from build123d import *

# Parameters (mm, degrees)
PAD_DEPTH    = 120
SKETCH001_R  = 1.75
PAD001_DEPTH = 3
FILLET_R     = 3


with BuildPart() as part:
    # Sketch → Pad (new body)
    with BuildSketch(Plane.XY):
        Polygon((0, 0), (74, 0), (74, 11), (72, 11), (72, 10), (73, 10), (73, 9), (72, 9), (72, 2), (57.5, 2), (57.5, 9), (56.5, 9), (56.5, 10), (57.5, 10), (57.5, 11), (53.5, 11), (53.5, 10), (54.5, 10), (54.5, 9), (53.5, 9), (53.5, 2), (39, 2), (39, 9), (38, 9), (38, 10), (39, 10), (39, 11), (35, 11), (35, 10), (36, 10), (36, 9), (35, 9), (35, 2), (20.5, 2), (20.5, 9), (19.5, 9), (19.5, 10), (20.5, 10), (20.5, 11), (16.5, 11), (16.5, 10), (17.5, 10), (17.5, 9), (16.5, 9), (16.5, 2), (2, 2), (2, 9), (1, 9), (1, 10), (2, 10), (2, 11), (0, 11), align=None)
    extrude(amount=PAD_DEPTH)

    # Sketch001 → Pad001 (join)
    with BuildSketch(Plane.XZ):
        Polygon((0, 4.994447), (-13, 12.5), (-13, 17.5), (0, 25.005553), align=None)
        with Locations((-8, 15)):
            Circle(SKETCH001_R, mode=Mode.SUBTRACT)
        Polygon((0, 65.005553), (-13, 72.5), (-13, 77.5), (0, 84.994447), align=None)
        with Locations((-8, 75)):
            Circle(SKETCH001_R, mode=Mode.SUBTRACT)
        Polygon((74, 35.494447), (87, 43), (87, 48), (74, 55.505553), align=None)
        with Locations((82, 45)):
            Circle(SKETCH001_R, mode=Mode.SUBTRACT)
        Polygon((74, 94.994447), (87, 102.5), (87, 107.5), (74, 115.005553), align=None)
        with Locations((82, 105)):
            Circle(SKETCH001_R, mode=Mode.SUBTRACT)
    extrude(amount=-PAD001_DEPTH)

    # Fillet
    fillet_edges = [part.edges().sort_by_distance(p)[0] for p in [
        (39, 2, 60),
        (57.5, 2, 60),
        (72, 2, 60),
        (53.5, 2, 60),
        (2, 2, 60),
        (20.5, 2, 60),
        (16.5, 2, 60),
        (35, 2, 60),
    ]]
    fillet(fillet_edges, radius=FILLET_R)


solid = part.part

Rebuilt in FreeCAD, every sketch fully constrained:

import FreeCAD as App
import Part
import Sketcher

V = App.Vector
Q = App.Units.Quantity


def edges_at(feature, points):
    """Names of the edges that pass closest to the given points."""
    edges = feature.Shape.Edges
    near = lambda p: min(range(len(edges)), key=lambda i: edges[i].distToShape(Part.Vertex(*p))[0])
    return sorted({f"Edge{near(p) + 1}" for p in points})

doc = App.newDocument("Part")
body = doc.addObject("PartDesign::Body", "Body")

# Sketch on XY plane
sketch1 = doc.addObject("Sketcher::SketchObject", "Sketch")
body.addObject(sketch1)
sketch1.AttachmentSupport = (doc.XY_Plane, [""])
sketch1.MapMode = "FlatFace"
sketch1.addGeometry([
    Part.LineSegment(V(0, 0, 0), V(74, 0, 0)),  # 0
    Part.LineSegment(V(74, 0, 0), V(74, 11, 0)),  # 1
    Part.LineSegment(V(74, 11, 0), V(72, 11, 0)),  # 2
    Part.LineSegment(V(72, 11, 0), V(72, 10, 0)),  # 3
    Part.LineSegment(V(72, 10, 0), V(73, 10, 0)),  # 4
    Part.LineSegment(V(73, 10, 0), V(73, 9, 0)),  # 5
    Part.LineSegment(V(73, 9, 0), V(72, 9, 0)),  # 6
    Part.LineSegment(V(72, 9, 0), V(72, 2, 0)),  # 7
    Part.LineSegment(V(72, 2, 0), V(57.5, 2, 0)),  # 8
    Part.LineSegment(V(57.5, 2, 0), V(57.5, 9, 0)),  # 9
    Part.LineSegment(V(57.5, 9, 0), V(56.5, 9, 0)),  # 10
    Part.LineSegment(V(56.5, 9, 0), V(56.5, 10, 0)),  # 11
    Part.LineSegment(V(56.5, 10, 0), V(57.5, 10, 0)),  # 12
    Part.LineSegment(V(57.5, 10, 0), V(57.5, 11, 0)),  # 13
    Part.LineSegment(V(57.5, 11, 0), V(53.5, 11, 0)),  # 14
    Part.LineSegment(V(53.5, 11, 0), V(53.5, 10, 0)),  # 15
    Part.LineSegment(V(53.5, 10, 0), V(54.5, 10, 0)),  # 16
    Part.LineSegment(V(54.5, 10, 0), V(54.5, 9, 0)),  # 17
    Part.LineSegment(V(54.5, 9, 0), V(53.5, 9, 0)),  # 18
    Part.LineSegment(V(53.5, 9, 0), V(53.5, 2, 0)),  # 19
    Part.LineSegment(V(53.5, 2, 0), V(39, 2, 0)),  # 20
    Part.LineSegment(V(39, 2, 0), V(39, 9, 0)),  # 21
    Part.LineSegment(V(39, 9, 0), V(38, 9, 0)),  # 22
    Part.LineSegment(V(38, 9, 0), V(38, 10, 0)),  # 23
    Part.LineSegment(V(38, 10, 0), V(39, 10, 0)),  # 24
    Part.LineSegment(V(39, 10, 0), V(39, 11, 0)),  # 25
    Part.LineSegment(V(39, 11, 0), V(35, 11, 0)),  # 26
    Part.LineSegment(V(35, 11, 0), V(35, 10, 0)),  # 27
    Part.LineSegment(V(35, 10, 0), V(36, 10, 0)),  # 28
    Part.LineSegment(V(36, 10, 0), V(36, 9, 0)),  # 29
    Part.LineSegment(V(36, 9, 0), V(35, 9, 0)),  # 30
    Part.LineSegment(V(35, 9, 0), V(35, 2, 0)),  # 31
    Part.LineSegment(V(35, 2, 0), V(20.5, 2, 0)),  # 32
    Part.LineSegment(V(20.5, 2, 0), V(20.5, 9, 0)),  # 33
    Part.LineSegment(V(20.5, 9, 0), V(19.5, 9, 0)),  # 34
    Part.LineSegment(V(19.5, 9, 0), V(19.5, 10, 0)),  # 35
    Part.LineSegment(V(19.5, 10, 0), V(20.5, 10, 0)),  # 36
    Part.LineSegment(V(20.5, 10, 0), V(20.5, 11, 0)),  # 37
    Part.LineSegment(V(20.5, 11, 0), V(16.5, 11, 0)),  # 38
    Part.LineSegment(V(16.5, 11, 0), V(16.5, 10, 0)),  # 39
    Part.LineSegment(V(16.5, 10, 0), V(17.5, 10, 0)),  # 40
    Part.LineSegment(V(17.5, 10, 0), V(17.5, 9, 0)),  # 41
    Part.LineSegment(V(17.5, 9, 0), V(16.5, 9, 0)),  # 42
    Part.LineSegment(V(16.5, 9, 0), V(16.5, 2, 0)),  # 43
    Part.LineSegment(V(16.5, 2, 0), V(2, 2, 0)),  # 44
    Part.LineSegment(V(2, 2, 0), V(2, 9, 0)),  # 45
    Part.LineSegment(V(2, 9, 0), V(1, 9, 0)),  # 46
    Part.LineSegment(V(1, 9, 0), V(1, 10, 0)),  # 47
    Part.LineSegment(V(1, 10, 0), V(2, 10, 0)),  # 48
    Part.LineSegment(V(2, 10, 0), V(2, 11, 0)),  # 49
    Part.LineSegment(V(2, 11, 0), V(0, 11, 0)),  # 50
    Part.LineSegment(V(0, 11, 0), V(0, 0, 0)),  # 51
], False)
sketch1.addConstraint([
    Sketcher.Constraint("Coincident", 0, 2, 1, 1),
    Sketcher.Constraint("Coincident", 1, 2, 2, 1),
    Sketcher.Constraint("Coincident", 2, 2, 3, 1),
    Sketcher.Constraint("Coincident", 3, 2, 4, 1),
    Sketcher.Constraint("Coincident", 4, 2, 5, 1),
    Sketcher.Constraint("Coincident", 5, 2, 6, 1),
    Sketcher.Constraint("Coincident", 6, 2, 7, 1),
    Sketcher.Constraint("Coincident", 7, 2, 8, 1),
    Sketcher.Constraint("Coincident", 8, 2, 9, 1),
    Sketcher.Constraint("Coincident", 9, 2, 10, 1),
    Sketcher.Constraint("Coincident", 10, 2, 11, 1),
    Sketcher.Constraint("Coincident", 11, 2, 12, 1),
    Sketcher.Constraint("Coincident", 12, 2, 13, 1),
    Sketcher.Constraint("Coincident", 13, 2, 14, 1),
    Sketcher.Constraint("Coincident", 14, 2, 15, 1),
    Sketcher.Constraint("Coincident", 15, 2, 16, 1),
    Sketcher.Constraint("Coincident", 16, 2, 17, 1),
    Sketcher.Constraint("Coincident", 17, 2, 18, 1),
    Sketcher.Constraint("Coincident", 18, 2, 19, 1),
    Sketcher.Constraint("Coincident", 19, 2, 20, 1),
    Sketcher.Constraint("Coincident", 20, 2, 21, 1),
    Sketcher.Constraint("Coincident", 21, 2, 22, 1),
    Sketcher.Constraint("Coincident", 22, 2, 23, 1),
    Sketcher.Constraint("Coincident", 23, 2, 24, 1),
    Sketcher.Constraint("Coincident", 24, 2, 25, 1),
    Sketcher.Constraint("Coincident", 25, 2, 26, 1),
    Sketcher.Constraint("Coincident", 26, 2, 27, 1),
    Sketcher.Constraint("Coincident", 27, 2, 28, 1),
    Sketcher.Constraint("Coincident", 28, 2, 29, 1),
    Sketcher.Constraint("Coincident", 29, 2, 30, 1),
    Sketcher.Constraint("Coincident", 30, 2, 31, 1),
    Sketcher.Constraint("Coincident", 31, 2, 32, 1),
    Sketcher.Constraint("Coincident", 32, 2, 33, 1),
    Sketcher.Constraint("Coincident", 33, 2, 34, 1),
    Sketcher.Constraint("Coincident", 34, 2, 35, 1),
    Sketcher.Constraint("Coincident", 35, 2, 36, 1),
    Sketcher.Constraint("Coincident", 36, 2, 37, 1),
    Sketcher.Constraint("Coincident", 37, 2, 38, 1),
    Sketcher.Constraint("Coincident", 38, 2, 39, 1),
    Sketcher.Constraint("Coincident", 39, 2, 40, 1),
    Sketcher.Constraint("Coincident", 40, 2, 41, 1),
    Sketcher.Constraint("Coincident", 41, 2, 42, 1),
    Sketcher.Constraint("Coincident", 42, 2, 43, 1),
    Sketcher.Constraint("Coincident", 43, 2, 44, 1),
    Sketcher.Constraint("Coincident", 44, 2, 45, 1),
    Sketcher.Constraint("Coincident", 45, 2, 46, 1),
    Sketcher.Constraint("Coincident", 46, 2, 47, 1),
    Sketcher.Constraint("Coincident", 47, 2, 48, 1),
    Sketcher.Constraint("Coincident", 48, 2, 49, 1),
    Sketcher.Constraint("Coincident", 49, 2, 50, 1),
    Sketcher.Constraint("Coincident", 50, 2, 51, 1),
    Sketcher.Constraint("Coincident", 51, 2, 0, 1),
    Sketcher.Constraint("Horizontal", 0),
    Sketcher.Constraint("Vertical", 1),
    Sketcher.Constraint("Horizontal", 2),
    Sketcher.Constraint("Vertical", 3),
    Sketcher.Constraint("Horizontal", 4),
    Sketcher.Constraint("Vertical", 5),
    Sketcher.Constraint("Horizontal", 6),
    Sketcher.Constraint("Vertical", 7),
    Sketcher.Constraint("Horizontal", 8),
    Sketcher.Constraint("Vertical", 9),
    Sketcher.Constraint("Horizontal", 10),
    Sketcher.Constraint("Vertical", 11),
    Sketcher.Constraint("Horizontal", 12),
    Sketcher.Constraint("Vertical", 13),
    Sketcher.Constraint("Horizontal", 14),
    Sketcher.Constraint("Vertical", 15),
    Sketcher.Constraint("Horizontal", 16),
    Sketcher.Constraint("Vertical", 17),
    Sketcher.Constraint("Horizontal", 18),
    Sketcher.Constraint("Vertical", 19),
    Sketcher.Constraint("Horizontal", 20),
    Sketcher.Constraint("Vertical", 21),
    Sketcher.Constraint("Horizontal", 22),
    Sketcher.Constraint("Vertical", 23),
    Sketcher.Constraint("Horizontal", 24),
    Sketcher.Constraint("Vertical", 25),
    Sketcher.Constraint("Horizontal", 26),
    Sketcher.Constraint("Vertical", 27),
    Sketcher.Constraint("Horizontal", 28),
    Sketcher.Constraint("Vertical", 29),
    Sketcher.Constraint("Horizontal", 30),
    Sketcher.Constraint("Vertical", 31),
    Sketcher.Constraint("Horizontal", 32),
    Sketcher.Constraint("Vertical", 33),
    Sketcher.Constraint("Horizontal", 34),
    Sketcher.Constraint("Vertical", 35),
    Sketcher.Constraint("Horizontal", 36),
    Sketcher.Constraint("Vertical", 37),
    Sketcher.Constraint("Horizontal", 38),
    Sketcher.Constraint("Vertical", 39),
    Sketcher.Constraint("Horizontal", 40),
    Sketcher.Constraint("Vertical", 41),
    Sketcher.Constraint("Horizontal", 42),
    Sketcher.Constraint("Vertical", 43),
    Sketcher.Constraint("Horizontal", 44),
    Sketcher.Constraint("Vertical", 45),
    Sketcher.Constraint("Horizontal", 46),
    Sketcher.Constraint("Vertical", 47),
    Sketcher.Constraint("Horizontal", 48),
    Sketcher.Constraint("Vertical", 49),
    Sketcher.Constraint("Horizontal", 50),
    Sketcher.Constraint("Vertical", 51),
    Sketcher.Constraint("Coincident", 51, 2, -1, 1),
    Sketcher.Constraint("Horizontal", 6, 2, 9, 2),
    Sketcher.Constraint("Horizontal", 4, 2, 11, 2),
    Sketcher.Constraint("Horizontal", 2, 2, 13, 2),
    Sketcher.Constraint("Horizontal", 12, 2, 15, 2),
    Sketcher.Constraint("Horizontal", 10, 2, 17, 2),
    Sketcher.Constraint("Horizontal", 8, 2, 19, 2),
    Sketcher.Constraint("Horizontal", 18, 2, 21, 2),
    Sketcher.Constraint("Horizontal", 16, 2, 23, 2),
    Sketcher.Constraint("Horizontal", 14, 2, 25, 2),
    Sketcher.Constraint("Horizontal", 24, 2, 27, 2),
    Sketcher.Constraint("Horizontal", 22, 2, 29, 2),
    Sketcher.Constraint("Horizontal", 20, 2, 31, 2),
    Sketcher.Constraint("Horizontal", 30, 2, 33, 2),
    Sketcher.Constraint("Horizontal", 28, 2, 35, 2),
    Sketcher.Constraint("Horizontal", 26, 2, 37, 2),
    Sketcher.Constraint("Horizontal", 36, 2, 39, 2),
    Sketcher.Constraint("Horizontal", 34, 2, 41, 2),
    Sketcher.Constraint("Horizontal", 32, 2, 43, 2),
    Sketcher.Constraint("Horizontal", 42, 2, 45, 2),
    Sketcher.Constraint("Horizontal", 40, 2, 47, 2),
    Sketcher.Constraint("Horizontal", 38, 2, 49, 2),
    Sketcher.Constraint("Vertical", 3, 2, 6, 2),
    Sketcher.Constraint("Vertical", 9, 2, 12, 2),
    Sketcher.Constraint("Vertical", 15, 2, 18, 2),
    Sketcher.Constraint("Vertical", 21, 2, 24, 2),
    Sketcher.Constraint("Vertical", 27, 2, 30, 2),
    Sketcher.Constraint("Vertical", 33, 2, 36, 2),
    Sketcher.Constraint("Vertical", 39, 2, 42, 2),
    Sketcher.Constraint("Vertical", 45, 2, 48, 2),
    Sketcher.Constraint("Equal", 6, 10),
    Sketcher.Constraint("Equal", 12, 16),
    Sketcher.Constraint("Equal", 8, 20),
    Sketcher.Constraint("Equal", 18, 22),
    Sketcher.Constraint("Equal", 14, 26),
    Sketcher.Constraint("Equal", 24, 28),
    Sketcher.Constraint("Equal", 20, 32),
    Sketcher.Constraint("Equal", 30, 34),
    Sketcher.Constraint("Equal", 26, 38),
    Sketcher.Constraint("Equal", 36, 40),
    Sketcher.Constraint("Equal", 32, 44),
    Sketcher.Constraint("Equal", 42, 46),
    Sketcher.Constraint("Equal", 2, 50),
    Sketcher.Constraint("Equal", 48, 3),
    Sketcher.Constraint("Equal", 3, 5),
    Sketcher.Constraint("DistanceX", 0, 1, 0, 2, 74.0),
    Sketcher.Constraint("DistanceX", 2, 2, 2, 1, 2.0),
    Sketcher.Constraint("DistanceX", 4, 1, 4, 2, 1.0),
    Sketcher.Constraint("DistanceX", 14, 2, 14, 1, 4.0),
    Sketcher.Constraint("DistanceY", 1, 1, 1, 2, 11.0),
    Sketcher.Constraint("DistanceY", 7, 2, 7, 1, 7.0),
])
pad1 = doc.addObject("PartDesign::Pad", "Pad")
body.addObject(pad1)
pad1.Profile = sketch1
pad1.Length = 120

# Sketch on XZ plane
sketch2 = doc.addObject("Sketcher::SketchObject", "Sketch001")
body.addObject(sketch2)
sketch2.AttachmentSupport = (doc.XZ_Plane, [""])
sketch2.MapMode = "FlatFace"
sketch2.addGeometry([
    Part.LineSegment(V(-13, 12.5, 0), V(0, 4.994447, 0)),  # 0
    Part.LineSegment(V(0, 4.994447, 0), V(0, 25.005553, 0)),  # 1
    Part.LineSegment(V(0, 25.005553, 0), V(-13, 17.5, 0)),  # 2
    Part.LineSegment(V(-13, 17.5, 0), V(-13, 12.5, 0)),  # 3
    Part.Circle(V(-8, 15, 0), V(0, 0, 1), 1.75),  # 4
    Part.LineSegment(V(-13, 72.5, 0), V(0, 65.005553, 0)),  # 5
    Part.LineSegment(V(0, 65.005553, 0), V(0, 84.994447, 0)),  # 6
    Part.LineSegment(V(0, 84.994447, 0), V(-13, 77.5, 0)),  # 7
    Part.LineSegment(V(-13, 77.5, 0), V(-13, 72.5, 0)),  # 8
    Part.Circle(V(-8, 75, 0), V(0, 0, 1), 1.75),  # 9
    Part.LineSegment(V(74, 35.494447, 0), V(87, 43, 0)),  # 10
    Part.LineSegment(V(87, 43, 0), V(87, 48, 0)),  # 11
    Part.LineSegment(V(87, 48, 0), V(74, 55.505553, 0)),  # 12
    Part.LineSegment(V(74, 55.505553, 0), V(74, 35.494447, 0)),  # 13
    Part.Circle(V(82, 45, 0), V(0, 0, 1), 1.75),  # 14
    Part.LineSegment(V(74, 94.994447, 0), V(87, 102.5, 0)),  # 15
    Part.LineSegment(V(87, 102.5, 0), V(87, 107.5, 0)),  # 16
    Part.LineSegment(V(87, 107.5, 0), V(74, 115.005553, 0)),  # 17
    Part.LineSegment(V(74, 115.005553, 0), V(74, 94.994447, 0)),  # 18
    Part.Circle(V(82, 105, 0), V(0, 0, 1), 1.75),  # 19
], False)
sketch2.addConstraint([
    Sketcher.Constraint("Coincident", 0, 2, 1, 1),
    Sketcher.Constraint("Coincident", 1, 2, 2, 1),
    Sketcher.Constraint("Coincident", 2, 2, 3, 1),
    Sketcher.Constraint("Coincident", 3, 2, 0, 1),
    Sketcher.Constraint("Coincident", 5, 2, 6, 1),
    Sketcher.Constraint("Coincident", 6, 2, 7, 1),
    Sketcher.Constraint("Coincident", 7, 2, 8, 1),
    Sketcher.Constraint("Coincident", 8, 2, 5, 1),
    Sketcher.Constraint("Coincident", 10, 2, 11, 1),
    Sketcher.Constraint("Coincident", 11, 2, 12, 1),
    Sketcher.Constraint("Coincident", 12, 2, 13, 1),
    Sketcher.Constraint("Coincident", 13, 2, 10, 1),
    Sketcher.Constraint("Coincident", 15, 2, 16, 1),
    Sketcher.Constraint("Coincident", 16, 2, 17, 1),
    Sketcher.Constraint("Coincident", 17, 2, 18, 1),
    Sketcher.Constraint("Coincident", 18, 2, 15, 1),
    Sketcher.Constraint("Vertical", 1),
    Sketcher.Constraint("Vertical", 3),
    Sketcher.Constraint("Vertical", 6),
    Sketcher.Constraint("Vertical", 8),
    Sketcher.Constraint("Vertical", 11),
    Sketcher.Constraint("Vertical", 13),
    Sketcher.Constraint("Vertical", 16),
    Sketcher.Constraint("Vertical", 18),
    Sketcher.Constraint("Equal", 4, 9),
    Sketcher.Constraint("Equal", 9, 14),
    Sketcher.Constraint("Equal", 14, 19),
    Sketcher.Constraint("PointOnObject", 0, 2, -2),
    Sketcher.Constraint("PointOnObject", 5, 2, -2),
    Sketcher.Constraint("Parallel", 2, 10),
    Sketcher.Constraint("Parallel", 0, 12),
    Sketcher.Constraint("Parallel", 10, 15),
    Sketcher.Constraint("Parallel", 12, 17),
    Sketcher.Constraint("Vertical", 4, 3, 9, 3),
    Sketcher.Constraint("Vertical", 14, 3, 19, 3),
    Sketcher.Constraint("Vertical", 3, 2, 7, 2),
    Sketcher.Constraint("Vertical", 11, 2, 15, 2),
    Sketcher.Constraint("Vertical", 13, 2, 17, 2),
    Sketcher.Constraint("Equal", 3, 8),
    Sketcher.Constraint("Equal", 8, 11),
    Sketcher.Constraint("Equal", 1, 13),
    Sketcher.Constraint("Equal", 11, 16),
    Sketcher.Constraint("Equal", 0, 2),
    Sketcher.Constraint("Equal", 5, 7),
    Sketcher.Constraint("Diameter", 4, 3.5),
    Sketcher.Constraint("DistanceY", 3, 2, 3, 1, 5.0),
    Sketcher.Constraint("Angle", 0, Q("-29.999998 deg")),
    Sketcher.Constraint("DistanceX", 4, 3, -1, 1, 8.0),
    Sketcher.Constraint("DistanceY", -1, 1, 4, 3, 15.0),
    Sketcher.Constraint("DistanceY", -1, 1, 9, 3, 75.0),
    Sketcher.Constraint("DistanceX", -1, 1, 14, 3, 82.0),
    Sketcher.Constraint("DistanceY", -1, 1, 14, 3, 45.0),
    Sketcher.Constraint("DistanceY", -1, 1, 19, 3, 105.0),
    Sketcher.Constraint("DistanceX", 2, 2, -1, 1, 13.0),
    Sketcher.Constraint("DistanceX", -1, 1, 10, 2, 87.0),
    Sketcher.Constraint("DistanceY", -1, 1, 10, 2, 43.0),
    Sketcher.Constraint("DistanceY", 1, 2, 5, 2, 40.0),
    Sketcher.Constraint("DistanceY", 2, 2, 7, 2, 60.0),
    Sketcher.Constraint("DistanceY", -1, 1, 2, 2, 17.5),
    Sketcher.Constraint("DistanceY", -1, 1, 15, 2, 102.5),
])
pad2 = doc.addObject("PartDesign::Pad", "Pad001")
body.addObject(pad2)
pad2.Profile = sketch2
pad2.Length = 3
pad2.Reversed = True
doc.recompute()

fillet = doc.addObject("PartDesign::Fillet", "Fillet")
body.addObject(fillet)
fillet.Base = (pad2, edges_at(pad2, [
    (39, 2, 60),
    (57.5, 2, 60),
    (72, 2, 60),
    (53.5, 2, 60),
    (2, 2, 60),
    (20.5, 2, 60),
    (16.5, 2, 60),
    (35, 2, 60),
]))
fillet.Radius = 3

doc.recompute()
